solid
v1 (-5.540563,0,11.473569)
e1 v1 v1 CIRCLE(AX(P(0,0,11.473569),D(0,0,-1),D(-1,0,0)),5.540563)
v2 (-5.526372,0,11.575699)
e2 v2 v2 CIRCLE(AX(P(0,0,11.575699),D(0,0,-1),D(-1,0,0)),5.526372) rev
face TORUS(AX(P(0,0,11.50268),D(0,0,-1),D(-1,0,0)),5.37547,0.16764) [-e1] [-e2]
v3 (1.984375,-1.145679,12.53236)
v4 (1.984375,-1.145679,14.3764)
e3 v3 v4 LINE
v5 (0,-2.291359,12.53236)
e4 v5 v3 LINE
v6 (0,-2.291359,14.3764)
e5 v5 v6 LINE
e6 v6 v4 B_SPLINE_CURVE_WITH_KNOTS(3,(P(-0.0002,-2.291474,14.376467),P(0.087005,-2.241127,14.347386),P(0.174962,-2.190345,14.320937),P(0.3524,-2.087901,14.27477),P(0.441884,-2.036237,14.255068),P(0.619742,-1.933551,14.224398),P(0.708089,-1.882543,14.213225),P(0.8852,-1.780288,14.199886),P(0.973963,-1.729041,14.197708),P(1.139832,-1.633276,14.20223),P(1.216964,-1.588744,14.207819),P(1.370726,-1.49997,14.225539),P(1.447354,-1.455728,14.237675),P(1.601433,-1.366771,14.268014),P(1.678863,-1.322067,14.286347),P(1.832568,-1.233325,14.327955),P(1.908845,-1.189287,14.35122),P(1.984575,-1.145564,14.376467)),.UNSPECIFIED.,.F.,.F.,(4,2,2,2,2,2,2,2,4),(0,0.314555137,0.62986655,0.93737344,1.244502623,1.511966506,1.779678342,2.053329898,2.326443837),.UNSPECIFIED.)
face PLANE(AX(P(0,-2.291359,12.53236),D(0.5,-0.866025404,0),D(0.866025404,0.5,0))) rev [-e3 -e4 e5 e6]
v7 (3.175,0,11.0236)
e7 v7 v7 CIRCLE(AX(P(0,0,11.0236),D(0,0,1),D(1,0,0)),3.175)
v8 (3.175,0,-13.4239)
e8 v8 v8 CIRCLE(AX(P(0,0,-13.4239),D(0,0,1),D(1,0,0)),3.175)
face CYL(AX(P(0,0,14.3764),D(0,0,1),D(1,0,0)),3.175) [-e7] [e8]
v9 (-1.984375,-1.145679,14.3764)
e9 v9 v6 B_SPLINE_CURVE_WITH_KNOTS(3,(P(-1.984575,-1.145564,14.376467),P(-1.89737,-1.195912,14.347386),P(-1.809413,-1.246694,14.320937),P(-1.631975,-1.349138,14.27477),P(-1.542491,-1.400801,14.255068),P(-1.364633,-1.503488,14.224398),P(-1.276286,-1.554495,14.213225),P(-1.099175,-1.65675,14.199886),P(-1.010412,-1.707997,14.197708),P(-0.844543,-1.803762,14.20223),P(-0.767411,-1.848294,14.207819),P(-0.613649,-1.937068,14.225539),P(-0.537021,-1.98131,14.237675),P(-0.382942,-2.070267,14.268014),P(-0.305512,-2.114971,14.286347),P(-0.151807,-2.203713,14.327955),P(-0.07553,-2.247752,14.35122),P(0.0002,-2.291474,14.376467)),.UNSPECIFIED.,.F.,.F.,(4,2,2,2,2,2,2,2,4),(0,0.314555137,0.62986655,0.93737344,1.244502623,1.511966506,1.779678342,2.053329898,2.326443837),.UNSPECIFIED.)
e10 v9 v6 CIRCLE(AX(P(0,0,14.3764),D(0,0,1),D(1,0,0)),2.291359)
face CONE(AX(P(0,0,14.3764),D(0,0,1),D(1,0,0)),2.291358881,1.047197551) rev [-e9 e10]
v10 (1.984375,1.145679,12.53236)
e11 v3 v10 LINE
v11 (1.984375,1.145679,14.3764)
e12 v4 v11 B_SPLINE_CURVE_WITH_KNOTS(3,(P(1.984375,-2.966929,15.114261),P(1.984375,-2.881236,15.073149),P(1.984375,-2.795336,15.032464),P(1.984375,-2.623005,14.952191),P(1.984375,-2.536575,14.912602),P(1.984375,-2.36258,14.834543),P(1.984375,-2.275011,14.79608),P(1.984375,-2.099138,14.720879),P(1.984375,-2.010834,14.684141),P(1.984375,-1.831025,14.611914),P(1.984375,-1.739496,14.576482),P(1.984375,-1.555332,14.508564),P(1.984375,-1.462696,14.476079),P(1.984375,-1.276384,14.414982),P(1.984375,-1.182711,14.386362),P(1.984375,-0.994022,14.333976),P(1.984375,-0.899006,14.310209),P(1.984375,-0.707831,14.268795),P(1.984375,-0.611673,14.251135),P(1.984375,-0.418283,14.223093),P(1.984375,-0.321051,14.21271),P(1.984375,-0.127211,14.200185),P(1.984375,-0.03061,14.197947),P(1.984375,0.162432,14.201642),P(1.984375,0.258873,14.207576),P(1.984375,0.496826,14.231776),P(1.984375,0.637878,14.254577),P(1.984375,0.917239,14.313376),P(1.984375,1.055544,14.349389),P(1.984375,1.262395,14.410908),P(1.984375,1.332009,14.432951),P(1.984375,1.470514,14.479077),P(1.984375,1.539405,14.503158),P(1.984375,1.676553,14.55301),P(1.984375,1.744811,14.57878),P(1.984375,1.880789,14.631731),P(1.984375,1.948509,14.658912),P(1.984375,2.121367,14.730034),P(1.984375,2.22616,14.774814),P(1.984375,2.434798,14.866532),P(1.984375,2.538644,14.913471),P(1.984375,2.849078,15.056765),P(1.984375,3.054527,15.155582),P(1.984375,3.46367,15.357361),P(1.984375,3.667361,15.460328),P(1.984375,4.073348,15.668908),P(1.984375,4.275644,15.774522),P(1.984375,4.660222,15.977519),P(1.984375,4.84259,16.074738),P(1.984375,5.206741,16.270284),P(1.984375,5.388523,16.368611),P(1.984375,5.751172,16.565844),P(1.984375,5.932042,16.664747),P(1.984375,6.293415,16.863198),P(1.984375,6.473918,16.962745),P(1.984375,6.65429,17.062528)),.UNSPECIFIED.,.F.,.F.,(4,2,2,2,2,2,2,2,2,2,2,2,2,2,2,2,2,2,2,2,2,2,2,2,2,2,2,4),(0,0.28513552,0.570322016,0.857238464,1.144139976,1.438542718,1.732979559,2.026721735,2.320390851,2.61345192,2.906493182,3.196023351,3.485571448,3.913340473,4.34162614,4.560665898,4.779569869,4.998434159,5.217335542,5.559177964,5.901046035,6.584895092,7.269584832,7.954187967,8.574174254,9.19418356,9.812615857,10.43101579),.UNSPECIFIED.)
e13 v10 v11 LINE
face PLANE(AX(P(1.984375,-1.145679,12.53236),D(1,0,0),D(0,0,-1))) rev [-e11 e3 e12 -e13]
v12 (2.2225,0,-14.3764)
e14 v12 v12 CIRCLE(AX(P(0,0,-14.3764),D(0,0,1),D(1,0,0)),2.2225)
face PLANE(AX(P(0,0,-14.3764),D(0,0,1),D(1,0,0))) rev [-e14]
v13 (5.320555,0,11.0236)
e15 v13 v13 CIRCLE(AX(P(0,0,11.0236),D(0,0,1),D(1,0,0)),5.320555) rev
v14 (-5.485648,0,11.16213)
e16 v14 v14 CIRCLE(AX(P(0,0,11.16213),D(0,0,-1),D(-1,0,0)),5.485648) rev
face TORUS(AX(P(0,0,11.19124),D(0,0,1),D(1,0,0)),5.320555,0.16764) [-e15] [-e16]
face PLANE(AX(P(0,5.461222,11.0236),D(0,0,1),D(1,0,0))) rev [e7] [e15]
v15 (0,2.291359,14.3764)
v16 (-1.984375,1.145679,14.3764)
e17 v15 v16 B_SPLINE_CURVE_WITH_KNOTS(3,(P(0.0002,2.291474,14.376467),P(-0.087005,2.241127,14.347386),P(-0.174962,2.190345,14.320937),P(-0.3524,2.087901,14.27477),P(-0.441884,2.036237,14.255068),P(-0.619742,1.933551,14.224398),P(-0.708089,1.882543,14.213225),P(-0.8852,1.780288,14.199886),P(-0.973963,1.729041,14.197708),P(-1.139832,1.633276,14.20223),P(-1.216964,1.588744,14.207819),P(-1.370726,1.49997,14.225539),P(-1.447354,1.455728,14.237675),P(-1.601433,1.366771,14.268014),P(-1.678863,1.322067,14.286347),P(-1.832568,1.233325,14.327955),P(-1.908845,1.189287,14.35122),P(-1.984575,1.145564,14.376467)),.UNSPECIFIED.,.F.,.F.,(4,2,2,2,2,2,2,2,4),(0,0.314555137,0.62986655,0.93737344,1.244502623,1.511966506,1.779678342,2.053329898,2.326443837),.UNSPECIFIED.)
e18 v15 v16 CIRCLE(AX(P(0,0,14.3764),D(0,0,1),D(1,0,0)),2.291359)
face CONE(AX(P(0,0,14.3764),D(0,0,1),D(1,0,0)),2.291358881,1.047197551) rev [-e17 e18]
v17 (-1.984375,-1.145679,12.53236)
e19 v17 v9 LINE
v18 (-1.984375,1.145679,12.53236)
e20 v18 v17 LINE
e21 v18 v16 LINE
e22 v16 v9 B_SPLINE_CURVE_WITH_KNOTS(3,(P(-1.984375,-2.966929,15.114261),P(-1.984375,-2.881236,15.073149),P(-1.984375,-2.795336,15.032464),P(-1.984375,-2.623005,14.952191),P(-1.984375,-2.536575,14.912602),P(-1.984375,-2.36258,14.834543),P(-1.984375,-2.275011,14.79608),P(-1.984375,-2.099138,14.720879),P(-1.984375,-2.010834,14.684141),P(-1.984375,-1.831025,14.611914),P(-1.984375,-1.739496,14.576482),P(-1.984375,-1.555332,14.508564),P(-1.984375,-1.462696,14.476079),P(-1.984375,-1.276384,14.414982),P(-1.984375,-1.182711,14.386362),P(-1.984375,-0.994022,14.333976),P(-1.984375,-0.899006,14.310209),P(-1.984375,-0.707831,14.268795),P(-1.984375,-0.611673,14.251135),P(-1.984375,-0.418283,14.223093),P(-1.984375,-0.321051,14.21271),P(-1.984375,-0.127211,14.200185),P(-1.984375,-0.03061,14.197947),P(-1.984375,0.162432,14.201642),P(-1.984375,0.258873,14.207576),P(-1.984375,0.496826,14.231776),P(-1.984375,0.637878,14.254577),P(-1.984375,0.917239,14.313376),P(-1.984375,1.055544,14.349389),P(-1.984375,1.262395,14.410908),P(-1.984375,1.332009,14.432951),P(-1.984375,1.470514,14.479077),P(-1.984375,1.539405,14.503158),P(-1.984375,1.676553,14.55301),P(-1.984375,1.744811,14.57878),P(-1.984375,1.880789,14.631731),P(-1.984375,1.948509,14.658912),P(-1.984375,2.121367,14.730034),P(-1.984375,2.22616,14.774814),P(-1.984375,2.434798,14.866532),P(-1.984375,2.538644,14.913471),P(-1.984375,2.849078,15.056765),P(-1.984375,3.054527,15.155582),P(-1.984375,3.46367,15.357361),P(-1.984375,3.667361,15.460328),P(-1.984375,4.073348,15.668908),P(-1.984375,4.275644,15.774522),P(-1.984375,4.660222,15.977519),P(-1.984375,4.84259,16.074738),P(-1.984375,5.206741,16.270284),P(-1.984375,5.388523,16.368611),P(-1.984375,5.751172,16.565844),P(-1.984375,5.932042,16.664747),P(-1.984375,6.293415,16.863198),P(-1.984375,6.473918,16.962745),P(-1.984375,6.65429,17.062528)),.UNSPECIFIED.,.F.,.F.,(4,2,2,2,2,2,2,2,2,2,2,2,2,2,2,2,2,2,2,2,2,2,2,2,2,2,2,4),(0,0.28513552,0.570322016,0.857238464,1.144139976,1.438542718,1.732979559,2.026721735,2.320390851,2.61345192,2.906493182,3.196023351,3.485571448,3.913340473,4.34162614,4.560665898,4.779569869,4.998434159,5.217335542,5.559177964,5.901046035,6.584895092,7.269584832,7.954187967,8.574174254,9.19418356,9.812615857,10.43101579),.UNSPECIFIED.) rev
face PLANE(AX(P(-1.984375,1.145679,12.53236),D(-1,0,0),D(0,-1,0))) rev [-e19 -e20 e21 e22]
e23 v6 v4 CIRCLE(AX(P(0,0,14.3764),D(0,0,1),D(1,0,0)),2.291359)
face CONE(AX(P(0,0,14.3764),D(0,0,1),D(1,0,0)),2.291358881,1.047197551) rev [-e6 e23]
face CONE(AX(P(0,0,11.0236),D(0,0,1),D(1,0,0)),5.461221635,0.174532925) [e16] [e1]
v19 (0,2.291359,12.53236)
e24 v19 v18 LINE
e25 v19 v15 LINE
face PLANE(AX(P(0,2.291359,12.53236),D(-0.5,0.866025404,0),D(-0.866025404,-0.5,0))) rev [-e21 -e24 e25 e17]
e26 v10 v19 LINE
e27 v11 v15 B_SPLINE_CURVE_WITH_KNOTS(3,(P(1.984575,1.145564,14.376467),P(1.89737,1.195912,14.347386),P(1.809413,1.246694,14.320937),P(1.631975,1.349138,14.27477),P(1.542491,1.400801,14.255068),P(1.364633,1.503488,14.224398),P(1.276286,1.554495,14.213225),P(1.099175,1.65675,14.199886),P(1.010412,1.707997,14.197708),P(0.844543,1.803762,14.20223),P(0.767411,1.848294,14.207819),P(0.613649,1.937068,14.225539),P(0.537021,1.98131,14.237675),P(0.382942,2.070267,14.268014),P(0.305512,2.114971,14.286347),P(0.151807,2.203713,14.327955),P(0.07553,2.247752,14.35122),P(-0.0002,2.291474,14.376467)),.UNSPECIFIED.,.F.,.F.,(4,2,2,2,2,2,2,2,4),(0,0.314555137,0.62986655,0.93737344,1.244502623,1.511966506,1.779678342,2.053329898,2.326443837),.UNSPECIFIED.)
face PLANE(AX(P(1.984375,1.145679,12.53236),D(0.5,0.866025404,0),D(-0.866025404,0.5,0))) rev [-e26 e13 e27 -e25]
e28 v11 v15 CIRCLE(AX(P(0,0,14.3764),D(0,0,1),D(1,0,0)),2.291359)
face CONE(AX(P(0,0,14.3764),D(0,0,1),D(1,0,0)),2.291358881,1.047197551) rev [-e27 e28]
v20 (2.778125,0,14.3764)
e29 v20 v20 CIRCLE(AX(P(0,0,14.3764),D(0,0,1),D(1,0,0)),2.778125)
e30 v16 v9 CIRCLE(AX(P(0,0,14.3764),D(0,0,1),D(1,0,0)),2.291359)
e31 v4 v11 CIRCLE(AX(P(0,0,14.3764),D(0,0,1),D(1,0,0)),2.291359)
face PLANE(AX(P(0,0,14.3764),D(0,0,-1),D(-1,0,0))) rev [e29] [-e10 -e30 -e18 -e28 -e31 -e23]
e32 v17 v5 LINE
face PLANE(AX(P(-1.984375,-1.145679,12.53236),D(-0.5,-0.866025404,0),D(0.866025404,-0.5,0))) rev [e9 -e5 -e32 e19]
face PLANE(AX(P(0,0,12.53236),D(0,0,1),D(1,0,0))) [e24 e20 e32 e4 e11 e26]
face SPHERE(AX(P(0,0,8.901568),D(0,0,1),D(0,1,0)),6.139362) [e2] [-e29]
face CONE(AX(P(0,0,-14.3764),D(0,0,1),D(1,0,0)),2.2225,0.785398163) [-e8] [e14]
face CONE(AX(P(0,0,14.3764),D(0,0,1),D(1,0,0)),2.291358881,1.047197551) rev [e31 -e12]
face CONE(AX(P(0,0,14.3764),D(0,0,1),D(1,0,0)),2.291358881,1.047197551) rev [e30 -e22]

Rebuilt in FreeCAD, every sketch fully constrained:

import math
import FreeCAD as App
import Part
import Sketcher
Q = App.Units.Quantity


def edges_at(feature, points):
    """Names of the edges that pass closest to the given points."""
    edges = feature.Shape.Edges
    near = lambda p: min(range(len(edges)), key=lambda i: edges[i].distToShape(Part.Vertex(*p))[0])
    return sorted({f"Edge{near(p) + 1}" for p in points})


def faces_at(feature, points):
    """Names of the faces that lie closest to the given points."""
    faces = feature.Shape.Faces
    near = lambda p: min(range(len(faces)), key=lambda i: faces[i].distToShape(Part.Vertex(*p))[0])
    return sorted({f"Face{near(p) + 1}" for p in points})


def add_polygon(sketch, points):
    """Adds a closed chain of lines whose ends are joined by coincident constraints."""
    first, n = sketch.GeometryCount, len(points)
    for a, b in zip(points, points[1:] + points[:1]):
        sketch.addGeometry(Part.LineSegment(App.Vector(*a, 0), App.Vector(*b, 0)), False)
    for i in range(n):
        sketch.addConstraint(Sketcher.Constraint("Coincident", first + i, 2, first + (i + 1) % n, 1))

doc = App.newDocument("Part")
body = doc.addObject("PartDesign::Body", "Body")

# Sketch on YZ plane
sketch1 = body.newObject("Sketcher::SketchObject", "Sketch")
sketch1.AttachmentSupport = (doc.getObject("YZ_Plane"), [""])
sketch1.MapMode = "FlatFace"
sketch1.addGeometry([
    Part.LineSegment(App.Vector(2.778125, 14.3764, 0), App.Vector(0, 14.3764, 0)),  # 0
    Part.LineSegment(App.Vector(0, 14.3764, 0), App.Vector(0, -14.3764, 0)),  # 1
    Part.LineSegment(App.Vector(0, -14.3764, 0), App.Vector(2.2225, -14.3764, 0)),  # 2
    Part.LineSegment(App.Vector(2.2225, -14.3764, 0), App.Vector(3.175, -13.4239, 0)),  # 3
    Part.LineSegment(App.Vector(3.175, -13.4239, 0), App.Vector(3.175, 11.0236, 0)),  # 4
    Part.LineSegment(App.Vector(3.175, 11.0236, 0), App.Vector(5.461222, 11.0236, 0)),  # 5
    Part.LineSegment(App.Vector(5.461222, 11.0236, 0), App.Vector(5.5499, 11.52652, 0)),  # 6
    Part.ArcOfCircle(Part.Circle(App.Vector(0, 8.901568, 0), App.Vector(0, 0, 1), 6.139362), math.radians(25.312876), math.radians(63.095137)),  # 7
], False)
sketch1.addConstraint([
    Sketcher.Constraint("Coincident", 0, 2, 1, 1),
    Sketcher.Constraint("Coincident", 1, 2, 2, 1),
    Sketcher.Constraint("Coincident", 2, 2, 3, 1),
    Sketcher.Constraint("Coincident", 3, 2, 4, 1),
    Sketcher.Constraint("Coincident", 4, 2, 5, 1),
    Sketcher.Constraint("Coincident", 5, 2, 6, 1),
    Sketcher.Constraint("Coincident", 6, 2, 7, 1),
    Sketcher.Constraint("Coincident", 7, 2, 0, 1),
    Sketcher.Constraint("Horizontal", 0),
    Sketcher.Constraint("Vertical", 1),
    Sketcher.Constraint("Horizontal", 2),
    Sketcher.Constraint("Vertical", 4),
    Sketcher.Constraint("Horizontal", 5),
    Sketcher.Constraint("Symmetric", 0, 2, 1, 2, -1, 1),
    Sketcher.Constraint("PointOnObject", 7, 3, -2),
    Sketcher.Constraint("Angle", 3, Q("45 deg")),
    Sketcher.Constraint("Angle", 6, Q("80 deg")),
    Sketcher.Constraint("DistanceY", 2, 2, 4, 2, Q("1 in")),
    Sketcher.Constraint("DistanceX", 0, 2, 0, 1, Q("0.109375 in")),
    Sketcher.Constraint("DistanceY", 1, 2, 1, 1, Q("1.132 in")),
    Sketcher.Constraint("DistanceX", 2, 1, 2, 2, Q("0.0875 in")),
    Sketcher.Constraint("DistanceY", 4, 1, 4, 2, Q("0.9625 in")),
    Sketcher.Constraint("Radius", 7, Q("6.139362 mm")),
    Sketcher.Constraint("DistanceX", -1, 1, 6, 2, Q("0.2185 in")),
])
revolution = body.newObject("PartDesign::Revolution", "Revolution")
revolution.Profile = sketch1
revolution.ReferenceAxis = (sketch1, ["V_Axis"])
revolution.Angle = 360

# Sketch on XY plane
sketch2 = body.newObject("Sketcher::SketchObject", "Sketch001")
sketch2.AttachmentSupport = (doc.getObject("XY_Plane"), [""])
sketch2.MapMode = "FlatFace"
sketch2.AttachmentOffset = App.Placement(App.Vector(0, 0, 0.566 * 25.4), App.Rotation())
add_polygon(sketch2, [(-1.984375, -1.145679), (0, -2.291359), (1.984375, -1.145679), (1.984375, 1.145679), (0, 2.291359), (-1.984375, 1.145679)])  # lines 0-5
sketch2.addConstraint([
    Sketcher.Constraint("Vertical", 2),
    Sketcher.Constraint("Vertical", 5),
    Sketcher.Constraint("Symmetric", 0, 2, 3, 2, -1, 1),
    Sketcher.Constraint("Symmetric", 1, 2, 4, 2, -1, 1),
    Sketcher.Constraint("PointOnObject", 0, 2, -2),
    Sketcher.Constraint("Parallel", 0, 3),
    Sketcher.Constraint("Horizontal", 2, 2, 4, 2),
    Sketcher.Constraint("Angle", 0, Q("-30 deg")),
    Sketcher.Constraint("DistanceX", -1, 1, 1, 2, Q("0.078125 in")),
    Sketcher.Constraint("DistanceY", 2, 1, 2, 2, Q("2.291359 mm")),
])
pocket1 = body.newObject("PartDesign::Pocket", "Pocket")
pocket1.Profile = sketch2
pocket1.Length = Q("0.0726 in")
body2 = doc.addObject("PartDesign::Body", "Body001")

# Sketch on XY plane
sketch3 = body2.newObject("Sketcher::SketchObject", "Sketch002")
sketch3.AttachmentSupport = (doc.getObject("XY_Plane001"), [""])
sketch3.MapMode = "FlatFace"
sketch3.AttachmentOffset = App.Placement(App.Vector(0, 0, 0.566 * 25.4), App.Rotation())
sketch3.addGeometry(Part.Circle(App.Vector(0, 0, 0), App.Vector(0, 0, 1), 2.291359), False)
sketch3.addConstraint([
    Sketcher.Constraint("Coincident", 0, 3, -1, 1),
    Sketcher.Constraint("Diameter", 0, Q("4.582718 mm")),
])
pad1 = body2.newObject("PartDesign::Pad", "Pad")
pad1.Profile = sketch3
pad1.Length = Q("0.0726 in")
pad1.Reversed = True
doc.recompute()

datumplane = body2.newObject("PartDesign::Plane", "DatumPlane")
datumplane.AttachmentSupport = (doc.getObject("XY_Plane001"), [""])
datumplane.MapMode = "FlatFace"
datumplane.AttachmentOffset = App.Placement(App.Vector(0, 0, 0.566 * 25.4), App.Rotation())
draft = body2.newObject("PartDesign::Draft", "Draft")
draft.Base = (pad1, faces_at(pad1, [(-2.291, 0, 13.454)]))
draft.NeutralPlane = (datumplane, [""])
draft.Angle = 60
draft.Reversed = True
doc.recompute()

boolean = body.newObject("PartDesign::Boolean", "Boolean")
boolean.Type = "Cut"
boolean.addObjects([body2])
doc.recompute()

fillet = body.newObject("PartDesign::Fillet", "Fillet")
fillet.Base = (boolean, edges_at(boolean, [(0, -5.461, 11.024), (0, -5.55, 11.527)]))
fillet.Radius = Q("0.0066 in")

doc.recompute()
